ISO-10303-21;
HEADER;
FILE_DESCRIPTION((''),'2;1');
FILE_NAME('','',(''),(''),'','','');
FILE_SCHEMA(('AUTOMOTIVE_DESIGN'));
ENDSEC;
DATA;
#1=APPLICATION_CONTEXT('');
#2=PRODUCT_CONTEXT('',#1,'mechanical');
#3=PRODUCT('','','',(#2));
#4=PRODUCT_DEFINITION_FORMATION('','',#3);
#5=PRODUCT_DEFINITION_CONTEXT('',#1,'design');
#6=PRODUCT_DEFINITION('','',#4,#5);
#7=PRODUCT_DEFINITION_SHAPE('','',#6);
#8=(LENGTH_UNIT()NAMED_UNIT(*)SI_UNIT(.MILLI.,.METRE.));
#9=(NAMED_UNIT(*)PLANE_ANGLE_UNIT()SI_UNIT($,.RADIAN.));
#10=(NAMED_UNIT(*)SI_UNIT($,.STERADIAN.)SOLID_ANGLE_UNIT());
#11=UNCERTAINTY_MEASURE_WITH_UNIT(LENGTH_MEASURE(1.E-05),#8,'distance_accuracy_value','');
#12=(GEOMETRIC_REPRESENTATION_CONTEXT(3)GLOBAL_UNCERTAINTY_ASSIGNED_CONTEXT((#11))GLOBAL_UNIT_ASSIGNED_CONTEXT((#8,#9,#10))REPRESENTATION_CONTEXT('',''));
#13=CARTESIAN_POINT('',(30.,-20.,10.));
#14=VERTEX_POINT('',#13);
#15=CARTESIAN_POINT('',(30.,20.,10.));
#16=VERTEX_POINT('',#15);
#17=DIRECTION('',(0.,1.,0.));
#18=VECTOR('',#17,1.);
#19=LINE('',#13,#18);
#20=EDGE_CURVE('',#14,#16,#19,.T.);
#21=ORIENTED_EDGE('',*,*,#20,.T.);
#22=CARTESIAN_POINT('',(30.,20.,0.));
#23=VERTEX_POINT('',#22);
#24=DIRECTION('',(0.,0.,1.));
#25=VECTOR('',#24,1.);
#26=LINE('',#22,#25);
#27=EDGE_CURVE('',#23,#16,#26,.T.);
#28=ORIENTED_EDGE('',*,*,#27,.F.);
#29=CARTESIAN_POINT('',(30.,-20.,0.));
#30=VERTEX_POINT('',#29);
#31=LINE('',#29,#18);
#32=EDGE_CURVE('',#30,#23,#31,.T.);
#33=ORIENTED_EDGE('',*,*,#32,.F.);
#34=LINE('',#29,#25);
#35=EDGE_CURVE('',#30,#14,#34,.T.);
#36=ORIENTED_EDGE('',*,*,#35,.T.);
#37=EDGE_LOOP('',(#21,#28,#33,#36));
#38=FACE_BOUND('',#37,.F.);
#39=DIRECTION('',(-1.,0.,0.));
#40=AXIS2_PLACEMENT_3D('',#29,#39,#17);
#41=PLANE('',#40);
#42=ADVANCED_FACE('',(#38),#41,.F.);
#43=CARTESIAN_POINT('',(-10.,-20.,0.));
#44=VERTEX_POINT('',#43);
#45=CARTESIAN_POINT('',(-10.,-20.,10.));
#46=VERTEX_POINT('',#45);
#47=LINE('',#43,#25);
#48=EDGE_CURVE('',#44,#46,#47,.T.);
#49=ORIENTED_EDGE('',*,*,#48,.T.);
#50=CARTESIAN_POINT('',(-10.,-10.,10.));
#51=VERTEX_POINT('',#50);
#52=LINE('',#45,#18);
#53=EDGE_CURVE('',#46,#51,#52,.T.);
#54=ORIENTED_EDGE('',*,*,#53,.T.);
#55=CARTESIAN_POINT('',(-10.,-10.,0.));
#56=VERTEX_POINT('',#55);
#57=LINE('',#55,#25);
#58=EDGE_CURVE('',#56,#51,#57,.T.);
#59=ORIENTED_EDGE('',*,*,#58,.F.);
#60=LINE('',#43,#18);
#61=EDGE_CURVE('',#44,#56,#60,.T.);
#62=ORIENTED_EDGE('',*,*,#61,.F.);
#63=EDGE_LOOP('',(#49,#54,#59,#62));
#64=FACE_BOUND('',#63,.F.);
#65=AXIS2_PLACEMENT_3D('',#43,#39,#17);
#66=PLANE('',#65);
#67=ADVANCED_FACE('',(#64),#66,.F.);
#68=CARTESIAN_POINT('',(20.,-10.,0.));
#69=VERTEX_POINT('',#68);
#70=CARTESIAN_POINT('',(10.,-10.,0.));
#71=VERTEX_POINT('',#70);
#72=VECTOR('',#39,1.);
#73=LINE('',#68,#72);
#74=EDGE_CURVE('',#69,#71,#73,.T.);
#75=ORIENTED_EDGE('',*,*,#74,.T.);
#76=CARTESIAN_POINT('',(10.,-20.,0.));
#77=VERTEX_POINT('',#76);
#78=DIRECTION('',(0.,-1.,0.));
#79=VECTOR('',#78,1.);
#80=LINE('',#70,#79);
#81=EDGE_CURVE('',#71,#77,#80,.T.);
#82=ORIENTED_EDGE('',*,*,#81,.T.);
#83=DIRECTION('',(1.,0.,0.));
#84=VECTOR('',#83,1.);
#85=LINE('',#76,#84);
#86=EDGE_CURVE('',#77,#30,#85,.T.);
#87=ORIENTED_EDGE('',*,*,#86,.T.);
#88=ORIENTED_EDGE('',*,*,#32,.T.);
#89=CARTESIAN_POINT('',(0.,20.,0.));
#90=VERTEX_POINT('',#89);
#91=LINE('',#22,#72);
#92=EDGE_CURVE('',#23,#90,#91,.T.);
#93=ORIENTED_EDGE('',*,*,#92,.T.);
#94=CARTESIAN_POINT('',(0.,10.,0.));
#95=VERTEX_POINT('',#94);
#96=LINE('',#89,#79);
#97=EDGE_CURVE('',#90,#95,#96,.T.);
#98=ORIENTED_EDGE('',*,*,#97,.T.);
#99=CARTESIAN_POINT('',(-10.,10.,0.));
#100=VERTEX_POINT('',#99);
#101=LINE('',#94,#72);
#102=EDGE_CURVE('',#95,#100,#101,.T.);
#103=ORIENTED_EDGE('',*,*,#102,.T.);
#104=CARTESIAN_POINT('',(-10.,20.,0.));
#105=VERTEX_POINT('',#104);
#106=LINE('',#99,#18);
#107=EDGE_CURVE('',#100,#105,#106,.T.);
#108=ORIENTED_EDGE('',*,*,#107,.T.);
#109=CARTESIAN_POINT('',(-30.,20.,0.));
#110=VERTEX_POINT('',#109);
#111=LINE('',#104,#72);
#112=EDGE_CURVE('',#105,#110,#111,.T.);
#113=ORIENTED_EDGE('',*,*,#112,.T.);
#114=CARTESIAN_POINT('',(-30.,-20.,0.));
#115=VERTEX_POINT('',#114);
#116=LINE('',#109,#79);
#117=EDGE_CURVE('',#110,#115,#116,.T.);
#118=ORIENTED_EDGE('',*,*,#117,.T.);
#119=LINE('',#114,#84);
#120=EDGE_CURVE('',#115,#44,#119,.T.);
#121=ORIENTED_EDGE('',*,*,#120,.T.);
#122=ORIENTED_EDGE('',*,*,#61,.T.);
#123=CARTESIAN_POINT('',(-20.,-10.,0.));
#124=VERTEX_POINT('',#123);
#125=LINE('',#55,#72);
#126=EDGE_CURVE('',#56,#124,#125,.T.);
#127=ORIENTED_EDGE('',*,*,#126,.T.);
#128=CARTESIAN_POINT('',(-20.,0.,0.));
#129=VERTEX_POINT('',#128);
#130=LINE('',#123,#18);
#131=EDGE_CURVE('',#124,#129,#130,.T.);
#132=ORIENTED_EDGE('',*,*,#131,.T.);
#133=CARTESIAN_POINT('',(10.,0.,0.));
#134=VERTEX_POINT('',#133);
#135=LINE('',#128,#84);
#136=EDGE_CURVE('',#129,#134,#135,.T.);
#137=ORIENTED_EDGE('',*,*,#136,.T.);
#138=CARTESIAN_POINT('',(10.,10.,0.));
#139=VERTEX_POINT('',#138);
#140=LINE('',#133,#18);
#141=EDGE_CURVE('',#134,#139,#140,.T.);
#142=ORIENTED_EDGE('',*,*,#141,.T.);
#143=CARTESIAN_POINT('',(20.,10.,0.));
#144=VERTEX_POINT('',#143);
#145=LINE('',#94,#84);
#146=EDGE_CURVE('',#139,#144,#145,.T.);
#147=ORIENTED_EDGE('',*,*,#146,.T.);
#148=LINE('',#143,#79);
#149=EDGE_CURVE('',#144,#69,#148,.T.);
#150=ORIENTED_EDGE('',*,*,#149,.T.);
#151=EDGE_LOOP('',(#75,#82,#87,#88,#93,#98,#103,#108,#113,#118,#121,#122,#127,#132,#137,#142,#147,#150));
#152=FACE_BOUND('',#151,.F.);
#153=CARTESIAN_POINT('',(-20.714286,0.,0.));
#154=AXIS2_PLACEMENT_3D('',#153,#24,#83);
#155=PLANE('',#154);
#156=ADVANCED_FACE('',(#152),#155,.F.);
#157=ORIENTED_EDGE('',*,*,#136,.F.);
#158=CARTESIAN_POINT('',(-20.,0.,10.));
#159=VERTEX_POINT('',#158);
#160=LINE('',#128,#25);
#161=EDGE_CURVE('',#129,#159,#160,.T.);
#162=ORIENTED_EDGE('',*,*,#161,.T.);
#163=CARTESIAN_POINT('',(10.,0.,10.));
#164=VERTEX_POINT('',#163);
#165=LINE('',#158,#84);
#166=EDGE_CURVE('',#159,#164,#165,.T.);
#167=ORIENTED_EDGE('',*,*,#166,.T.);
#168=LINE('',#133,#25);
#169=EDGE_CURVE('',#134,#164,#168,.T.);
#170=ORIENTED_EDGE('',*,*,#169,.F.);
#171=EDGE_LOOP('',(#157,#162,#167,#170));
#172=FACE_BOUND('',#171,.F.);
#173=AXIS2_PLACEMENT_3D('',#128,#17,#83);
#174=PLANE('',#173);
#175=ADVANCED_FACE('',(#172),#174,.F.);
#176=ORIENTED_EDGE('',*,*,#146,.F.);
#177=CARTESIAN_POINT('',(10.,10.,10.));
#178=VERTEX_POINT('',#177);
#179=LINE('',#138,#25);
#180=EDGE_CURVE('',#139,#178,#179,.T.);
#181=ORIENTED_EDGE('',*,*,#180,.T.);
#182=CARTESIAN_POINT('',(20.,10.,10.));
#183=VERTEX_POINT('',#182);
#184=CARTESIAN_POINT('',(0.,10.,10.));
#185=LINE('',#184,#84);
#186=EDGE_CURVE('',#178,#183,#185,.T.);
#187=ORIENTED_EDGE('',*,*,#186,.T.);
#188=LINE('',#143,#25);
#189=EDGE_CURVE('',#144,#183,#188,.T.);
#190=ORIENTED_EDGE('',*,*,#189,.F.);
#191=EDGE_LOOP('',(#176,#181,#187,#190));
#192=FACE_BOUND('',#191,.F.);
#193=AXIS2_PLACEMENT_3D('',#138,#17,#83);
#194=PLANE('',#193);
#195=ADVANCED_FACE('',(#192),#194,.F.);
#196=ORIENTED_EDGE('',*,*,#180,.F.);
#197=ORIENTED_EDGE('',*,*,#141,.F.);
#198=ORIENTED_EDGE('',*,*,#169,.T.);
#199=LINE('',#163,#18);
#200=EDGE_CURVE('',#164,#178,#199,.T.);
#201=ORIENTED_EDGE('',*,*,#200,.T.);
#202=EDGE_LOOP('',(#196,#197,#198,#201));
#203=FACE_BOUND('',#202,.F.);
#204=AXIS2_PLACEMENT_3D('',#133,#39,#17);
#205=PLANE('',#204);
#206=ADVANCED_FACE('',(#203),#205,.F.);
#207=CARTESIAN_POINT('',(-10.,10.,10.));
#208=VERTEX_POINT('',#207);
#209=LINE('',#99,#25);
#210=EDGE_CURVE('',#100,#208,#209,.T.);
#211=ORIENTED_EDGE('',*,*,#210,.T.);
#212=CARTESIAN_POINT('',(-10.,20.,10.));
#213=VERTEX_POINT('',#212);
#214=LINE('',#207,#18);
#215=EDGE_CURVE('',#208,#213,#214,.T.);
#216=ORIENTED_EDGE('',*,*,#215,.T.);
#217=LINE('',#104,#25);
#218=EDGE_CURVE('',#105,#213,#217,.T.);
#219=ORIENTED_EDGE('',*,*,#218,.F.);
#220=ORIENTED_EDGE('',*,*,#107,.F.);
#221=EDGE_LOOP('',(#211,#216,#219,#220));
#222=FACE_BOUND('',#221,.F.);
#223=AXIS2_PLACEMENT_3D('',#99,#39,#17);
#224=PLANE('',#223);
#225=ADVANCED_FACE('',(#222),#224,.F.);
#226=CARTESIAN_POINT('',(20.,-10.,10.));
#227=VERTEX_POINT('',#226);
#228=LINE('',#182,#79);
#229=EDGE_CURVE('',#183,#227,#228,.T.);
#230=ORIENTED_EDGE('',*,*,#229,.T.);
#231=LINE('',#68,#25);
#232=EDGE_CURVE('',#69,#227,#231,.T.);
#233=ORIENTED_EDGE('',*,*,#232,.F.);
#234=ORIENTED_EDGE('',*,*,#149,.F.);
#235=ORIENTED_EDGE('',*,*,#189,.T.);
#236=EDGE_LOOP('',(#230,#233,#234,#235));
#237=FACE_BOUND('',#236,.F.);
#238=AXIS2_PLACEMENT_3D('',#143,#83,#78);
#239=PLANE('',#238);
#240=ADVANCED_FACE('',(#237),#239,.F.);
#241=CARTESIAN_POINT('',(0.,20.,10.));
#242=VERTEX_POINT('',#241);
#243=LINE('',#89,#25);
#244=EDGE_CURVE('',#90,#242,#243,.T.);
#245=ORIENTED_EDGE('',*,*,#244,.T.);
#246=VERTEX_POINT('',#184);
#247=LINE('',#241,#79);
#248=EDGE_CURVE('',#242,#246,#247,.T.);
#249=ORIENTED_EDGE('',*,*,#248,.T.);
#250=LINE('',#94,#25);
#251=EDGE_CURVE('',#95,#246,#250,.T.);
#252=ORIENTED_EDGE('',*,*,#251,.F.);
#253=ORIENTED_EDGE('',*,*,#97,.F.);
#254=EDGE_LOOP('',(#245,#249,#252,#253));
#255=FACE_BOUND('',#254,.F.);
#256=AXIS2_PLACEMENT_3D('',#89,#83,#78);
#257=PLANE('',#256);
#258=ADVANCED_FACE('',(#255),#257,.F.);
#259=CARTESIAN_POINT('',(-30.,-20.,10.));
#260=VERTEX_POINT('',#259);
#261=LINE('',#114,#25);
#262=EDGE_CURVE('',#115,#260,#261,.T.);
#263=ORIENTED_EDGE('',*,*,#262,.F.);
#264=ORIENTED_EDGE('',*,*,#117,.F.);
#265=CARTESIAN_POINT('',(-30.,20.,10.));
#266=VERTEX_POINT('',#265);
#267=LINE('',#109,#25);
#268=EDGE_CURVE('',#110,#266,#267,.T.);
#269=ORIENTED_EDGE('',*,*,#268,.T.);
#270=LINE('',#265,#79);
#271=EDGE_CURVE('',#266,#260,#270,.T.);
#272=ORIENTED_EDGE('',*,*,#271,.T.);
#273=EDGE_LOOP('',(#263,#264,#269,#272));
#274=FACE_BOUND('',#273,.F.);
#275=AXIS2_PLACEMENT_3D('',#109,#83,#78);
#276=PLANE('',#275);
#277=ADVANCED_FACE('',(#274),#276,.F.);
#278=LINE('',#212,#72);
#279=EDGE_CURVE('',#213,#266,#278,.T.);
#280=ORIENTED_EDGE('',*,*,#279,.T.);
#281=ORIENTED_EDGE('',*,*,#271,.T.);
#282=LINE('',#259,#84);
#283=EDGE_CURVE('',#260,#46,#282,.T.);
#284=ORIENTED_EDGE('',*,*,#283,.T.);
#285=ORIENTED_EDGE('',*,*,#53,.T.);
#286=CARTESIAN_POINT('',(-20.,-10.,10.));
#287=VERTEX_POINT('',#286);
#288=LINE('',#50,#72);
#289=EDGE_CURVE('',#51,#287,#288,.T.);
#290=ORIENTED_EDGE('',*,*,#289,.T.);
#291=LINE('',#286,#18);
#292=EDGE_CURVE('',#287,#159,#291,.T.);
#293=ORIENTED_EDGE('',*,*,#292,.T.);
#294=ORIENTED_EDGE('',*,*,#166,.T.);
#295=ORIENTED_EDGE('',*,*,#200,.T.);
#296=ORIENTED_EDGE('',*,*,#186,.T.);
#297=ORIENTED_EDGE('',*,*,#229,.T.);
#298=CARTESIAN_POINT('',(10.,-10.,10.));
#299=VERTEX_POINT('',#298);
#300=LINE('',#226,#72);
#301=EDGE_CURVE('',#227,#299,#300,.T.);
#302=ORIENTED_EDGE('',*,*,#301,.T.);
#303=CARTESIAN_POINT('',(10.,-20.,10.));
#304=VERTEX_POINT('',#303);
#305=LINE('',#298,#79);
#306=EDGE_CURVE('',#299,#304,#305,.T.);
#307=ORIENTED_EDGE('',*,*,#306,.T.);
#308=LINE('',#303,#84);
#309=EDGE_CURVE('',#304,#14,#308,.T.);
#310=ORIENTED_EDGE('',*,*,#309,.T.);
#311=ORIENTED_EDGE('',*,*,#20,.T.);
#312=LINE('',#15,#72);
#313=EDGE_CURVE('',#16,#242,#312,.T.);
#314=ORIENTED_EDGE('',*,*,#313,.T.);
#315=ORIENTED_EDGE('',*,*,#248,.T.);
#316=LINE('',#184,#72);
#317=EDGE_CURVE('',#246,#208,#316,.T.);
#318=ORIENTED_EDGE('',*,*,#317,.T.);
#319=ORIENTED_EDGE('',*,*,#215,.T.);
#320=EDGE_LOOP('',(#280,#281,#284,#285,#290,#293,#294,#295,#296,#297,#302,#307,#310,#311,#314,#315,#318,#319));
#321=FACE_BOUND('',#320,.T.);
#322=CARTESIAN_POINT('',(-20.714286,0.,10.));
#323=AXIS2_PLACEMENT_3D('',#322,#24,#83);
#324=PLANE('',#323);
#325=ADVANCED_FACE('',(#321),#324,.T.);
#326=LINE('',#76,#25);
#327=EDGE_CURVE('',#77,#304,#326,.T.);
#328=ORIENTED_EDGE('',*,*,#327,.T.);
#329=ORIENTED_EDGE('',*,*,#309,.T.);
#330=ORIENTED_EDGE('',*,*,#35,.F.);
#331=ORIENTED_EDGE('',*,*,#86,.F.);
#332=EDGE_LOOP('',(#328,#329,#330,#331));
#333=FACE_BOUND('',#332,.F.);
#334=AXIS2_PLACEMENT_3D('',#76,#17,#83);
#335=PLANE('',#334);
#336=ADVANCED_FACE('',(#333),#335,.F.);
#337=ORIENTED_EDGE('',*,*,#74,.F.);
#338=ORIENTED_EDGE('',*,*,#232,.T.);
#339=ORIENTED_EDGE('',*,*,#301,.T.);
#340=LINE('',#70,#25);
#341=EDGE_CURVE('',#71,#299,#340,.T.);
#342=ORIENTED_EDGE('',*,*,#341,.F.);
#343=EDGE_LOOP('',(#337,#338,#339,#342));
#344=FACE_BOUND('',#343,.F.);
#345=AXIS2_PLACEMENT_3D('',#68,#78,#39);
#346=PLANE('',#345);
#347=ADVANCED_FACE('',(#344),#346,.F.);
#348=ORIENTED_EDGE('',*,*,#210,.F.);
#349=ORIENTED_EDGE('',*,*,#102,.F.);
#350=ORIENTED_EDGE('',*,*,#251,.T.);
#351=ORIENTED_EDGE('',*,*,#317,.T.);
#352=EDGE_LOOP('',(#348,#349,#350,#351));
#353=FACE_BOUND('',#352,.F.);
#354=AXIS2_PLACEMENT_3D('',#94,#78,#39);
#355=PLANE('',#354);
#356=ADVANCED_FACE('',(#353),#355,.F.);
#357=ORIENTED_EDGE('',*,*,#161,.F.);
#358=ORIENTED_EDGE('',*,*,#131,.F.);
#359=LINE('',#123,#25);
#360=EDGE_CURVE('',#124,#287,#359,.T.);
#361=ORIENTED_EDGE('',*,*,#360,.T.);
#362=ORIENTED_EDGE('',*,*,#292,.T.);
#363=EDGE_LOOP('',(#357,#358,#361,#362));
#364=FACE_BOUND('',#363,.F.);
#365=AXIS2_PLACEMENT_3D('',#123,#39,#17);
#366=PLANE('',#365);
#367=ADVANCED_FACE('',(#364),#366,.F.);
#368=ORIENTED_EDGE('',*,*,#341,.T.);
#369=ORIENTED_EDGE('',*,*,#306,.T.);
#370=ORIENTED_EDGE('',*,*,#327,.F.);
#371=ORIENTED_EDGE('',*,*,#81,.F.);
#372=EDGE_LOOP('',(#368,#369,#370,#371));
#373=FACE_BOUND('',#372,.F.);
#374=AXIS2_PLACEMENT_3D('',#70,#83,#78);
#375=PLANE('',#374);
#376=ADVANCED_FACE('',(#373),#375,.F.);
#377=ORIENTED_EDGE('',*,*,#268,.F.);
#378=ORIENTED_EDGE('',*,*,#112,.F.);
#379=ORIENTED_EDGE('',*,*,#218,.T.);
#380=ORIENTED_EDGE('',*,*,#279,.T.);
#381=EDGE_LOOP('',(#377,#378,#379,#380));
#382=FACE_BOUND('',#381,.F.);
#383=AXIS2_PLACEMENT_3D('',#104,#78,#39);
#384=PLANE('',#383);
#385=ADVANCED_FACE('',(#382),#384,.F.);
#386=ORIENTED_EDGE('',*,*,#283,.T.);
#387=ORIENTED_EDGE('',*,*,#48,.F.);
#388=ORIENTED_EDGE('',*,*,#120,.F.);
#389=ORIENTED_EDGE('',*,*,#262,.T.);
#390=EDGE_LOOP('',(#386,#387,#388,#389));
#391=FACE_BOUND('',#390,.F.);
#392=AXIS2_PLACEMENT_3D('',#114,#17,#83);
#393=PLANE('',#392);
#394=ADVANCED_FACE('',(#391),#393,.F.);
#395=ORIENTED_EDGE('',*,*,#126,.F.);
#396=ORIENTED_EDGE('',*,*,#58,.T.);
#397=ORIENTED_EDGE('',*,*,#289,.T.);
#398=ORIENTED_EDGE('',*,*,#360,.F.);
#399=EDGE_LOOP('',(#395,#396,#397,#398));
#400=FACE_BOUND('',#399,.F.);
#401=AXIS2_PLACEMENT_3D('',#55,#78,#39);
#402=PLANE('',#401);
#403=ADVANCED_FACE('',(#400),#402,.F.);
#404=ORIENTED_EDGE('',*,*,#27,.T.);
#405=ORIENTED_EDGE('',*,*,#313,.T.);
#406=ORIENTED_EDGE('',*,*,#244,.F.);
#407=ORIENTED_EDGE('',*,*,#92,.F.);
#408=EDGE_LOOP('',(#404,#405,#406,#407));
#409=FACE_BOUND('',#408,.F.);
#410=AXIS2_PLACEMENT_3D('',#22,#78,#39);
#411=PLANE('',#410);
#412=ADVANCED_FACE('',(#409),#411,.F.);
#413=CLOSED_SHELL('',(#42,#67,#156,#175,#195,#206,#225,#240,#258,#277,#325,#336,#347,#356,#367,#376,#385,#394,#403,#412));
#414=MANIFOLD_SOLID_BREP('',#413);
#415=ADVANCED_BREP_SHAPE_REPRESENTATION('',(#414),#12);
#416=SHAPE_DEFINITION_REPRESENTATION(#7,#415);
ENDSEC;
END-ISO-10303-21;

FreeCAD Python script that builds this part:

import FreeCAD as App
import Part
import Sketcher
Q = App.Units.Quantity


def add_polygon(sketch, points):
    """Adds a closed chain of lines whose ends are joined by coincident constraints."""
    first, n = sketch.GeometryCount, len(points)
    for a, b in zip(points, points[1:] + points[:1]):
        sketch.addGeometry(Part.LineSegment(App.Vector(*a, 0), App.Vector(*b, 0)), False)
    for i in range(n):
        sketch.addConstraint(Sketcher.Constraint("Coincident", first + i, 2, first + (i + 1) % n, 1))

doc = App.newDocument("Part")
body = doc.addObject("PartDesign::Body", "Body")

# Sketch on XY plane
sketch1 = body.newObject("Sketcher::SketchObject", "Sketch")
sketch1.AttachmentSupport = (doc.getObject("XY_Plane"), [""])
sketch1.MapMode = "FlatFace"
add_polygon(sketch1, [(-10, 20), (-30, 20), (-30, -20), (-10, -20), (-10, -10), (-20, -10), (-20, 0), (10, 0), (10, 10), (20, 10), (20, -10), (10, -10), (10, -20), (30, -20), (30, 20), (0, 20), (0, 10), (-10, 10)])  # lines 0-17
sketch1.addConstraint([
    Sketcher.Constraint("Horizontal", 0),
    Sketcher.Constraint("Vertical", 1),
    Sketcher.Constraint("Horizontal", 2),
    Sketcher.Constraint("Vertical", 3),
    Sketcher.Constraint("Horizontal", 4),
    Sketcher.Constraint("Vertical", 5),
    Sketcher.Constraint("Horizontal", 6),
    Sketcher.Constraint("Vertical", 7),
    Sketcher.Constraint("Horizontal", 8),
    Sketcher.Constraint("Vertical", 9),
    Sketcher.Constraint("Horizontal", 10),
    Sketcher.Constraint("Vertical", 11),
    Sketcher.Constraint("Horizontal", 12),
    Sketcher.Constraint("Vertical", 13),
    Sketcher.Constraint("Horizontal", 14),
    Sketcher.Constraint("Vertical", 15),
    Sketcher.Constraint("Horizontal", 16),
    Sketcher.Constraint("Vertical", 17),
    Sketcher.Constraint("Symmetric", 3, 2, 7, 2, -1, 1),
    Sketcher.Constraint("Symmetric", 0, 2, 12, 2, -1, 1),
    Sketcher.Constraint("Symmetric", 10, 2, 16, 2, -1, 1),
    Sketcher.Constraint("Symmetric", 4, 2, 9, 2, -2),
    Sketcher.Constraint("Symmetric", 2, 2, 11, 2, -2),
    Sketcher.Constraint("PointOnObject", 5, 2, -1),
    Sketcher.Constraint("PointOnObject", 14, 2, -2),
    Sketcher.Constraint("Horizontal", 0, 2, 13, 2),
    Sketcher.Constraint("Equal", 6, 14),
    Sketcher.Constraint("Equal", 10, 16),
    Sketcher.Constraint("Equal", 16, 3),
    Sketcher.Constraint("Equal", 3, 5),
    Sketcher.Constraint("DistanceX", 0, 2, 0, 1, Q("20 mm")),
])
pad1 = body.newObject("PartDesign::Pad", "Pad")
pad1.Profile = sketch1
pad1.Length = 10

doc.recompute()
